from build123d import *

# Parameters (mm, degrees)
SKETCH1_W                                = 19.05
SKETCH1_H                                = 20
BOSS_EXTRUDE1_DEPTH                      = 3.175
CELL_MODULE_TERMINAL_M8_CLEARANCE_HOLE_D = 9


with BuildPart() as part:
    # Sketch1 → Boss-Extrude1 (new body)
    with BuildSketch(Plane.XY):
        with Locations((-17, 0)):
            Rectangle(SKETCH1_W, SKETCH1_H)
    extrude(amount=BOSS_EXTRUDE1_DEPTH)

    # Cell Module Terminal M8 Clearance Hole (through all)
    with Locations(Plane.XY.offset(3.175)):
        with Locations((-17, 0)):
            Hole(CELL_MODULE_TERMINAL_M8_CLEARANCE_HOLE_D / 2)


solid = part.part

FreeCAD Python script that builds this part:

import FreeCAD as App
import Part
import Sketcher
Q = App.Units.Quantity

doc = App.newDocument("Part")
body = doc.addObject("PartDesign::Body", "Body")

sketch1 = doc.addObject("Sketcher::SketchObject", "Sketch")
body.addObject(sketch1)
sketch1.AttachmentSupport = (doc.XY_Plane, [""])
sketch1.MapMode = "FlatFace"
sketch1.addGeometry([
    Part.LineSegment(App.Vector(-27, 10, 0), App.Vector(-27, -10, 0)),
    Part.LineSegment(App.Vector(-27, -10, 0), App.Vector(-7, -10, 0)),
    Part.LineSegment(App.Vector(-7, -10, 0), App.Vector(-7, 10, 0)),
    Part.LineSegment(App.Vector(-7, 10, 0), App.Vector(-27, 10, 0)),
], False)
sketch1.addConstraint([
    Sketcher.Constraint("Coincident", 0, 2, 1, 1),
    Sketcher.Constraint("Coincident", 1, 2, 2, 1),
    Sketcher.Constraint("Coincident", 2, 2, 3, 1),
    Sketcher.Constraint("Coincident", 3, 2, 0, 1),
    Sketcher.Constraint("Vertical", 0),
    Sketcher.Constraint("Horizontal", 1),
    Sketcher.Constraint("Vertical", 2),
    Sketcher.Constraint("Horizontal", 3),
    Sketcher.Constraint("DistanceY", 0, 2, 0, 1, Q("20 mm")),
    Sketcher.Constraint("DistanceY", 0, 2, -1, 1, Q("10 mm")),
    Sketcher.Constraint("DistanceX", 1, 1, 1, 2, Q("19.05 mm")),
    Sketcher.Constraint("DistanceX", 0, 2, -1, 1, Q("26.525 mm")),
])
pad1 = doc.addObject("PartDesign::Pad", "Pad")
body.addObject(pad1)
pad1.Profile = sketch1
pad1.Length = 3.175

sketch2 = doc.addObject("Sketcher::SketchObject", "Sketch001")
body.addObject(sketch2)
sketch2.AttachmentSupport = (doc.XY_Plane, [""])
sketch2.MapMode = "FlatFace"
sketch2.AttachmentOffset = App.Placement(App.Vector(0, 0, 3.175), App.Rotation())
sketch2.addGeometry(Part.Circle(App.Vector(-17, 0, 0), App.Vector(0, 0, 1), 4.5), False)
sketch2.addConstraint([
    Sketcher.Constraint("PointOnObject", 0, 3, -1),
    Sketcher.Constraint("Diameter", 0, Q("9 mm")),
    Sketcher.Constraint("DistanceX", 0, 3, -1, 1, Q("17 mm")),
])
doc.recompute()
hole = doc.addObject("PartDesign::Hole", "Hole")
body.addObject(hole)
hole.Profile = sketch2
hole.ThreadType = "None"
hole.Diameter = 9
hole.DepthType = "ThroughAll"

doc.recompute()
